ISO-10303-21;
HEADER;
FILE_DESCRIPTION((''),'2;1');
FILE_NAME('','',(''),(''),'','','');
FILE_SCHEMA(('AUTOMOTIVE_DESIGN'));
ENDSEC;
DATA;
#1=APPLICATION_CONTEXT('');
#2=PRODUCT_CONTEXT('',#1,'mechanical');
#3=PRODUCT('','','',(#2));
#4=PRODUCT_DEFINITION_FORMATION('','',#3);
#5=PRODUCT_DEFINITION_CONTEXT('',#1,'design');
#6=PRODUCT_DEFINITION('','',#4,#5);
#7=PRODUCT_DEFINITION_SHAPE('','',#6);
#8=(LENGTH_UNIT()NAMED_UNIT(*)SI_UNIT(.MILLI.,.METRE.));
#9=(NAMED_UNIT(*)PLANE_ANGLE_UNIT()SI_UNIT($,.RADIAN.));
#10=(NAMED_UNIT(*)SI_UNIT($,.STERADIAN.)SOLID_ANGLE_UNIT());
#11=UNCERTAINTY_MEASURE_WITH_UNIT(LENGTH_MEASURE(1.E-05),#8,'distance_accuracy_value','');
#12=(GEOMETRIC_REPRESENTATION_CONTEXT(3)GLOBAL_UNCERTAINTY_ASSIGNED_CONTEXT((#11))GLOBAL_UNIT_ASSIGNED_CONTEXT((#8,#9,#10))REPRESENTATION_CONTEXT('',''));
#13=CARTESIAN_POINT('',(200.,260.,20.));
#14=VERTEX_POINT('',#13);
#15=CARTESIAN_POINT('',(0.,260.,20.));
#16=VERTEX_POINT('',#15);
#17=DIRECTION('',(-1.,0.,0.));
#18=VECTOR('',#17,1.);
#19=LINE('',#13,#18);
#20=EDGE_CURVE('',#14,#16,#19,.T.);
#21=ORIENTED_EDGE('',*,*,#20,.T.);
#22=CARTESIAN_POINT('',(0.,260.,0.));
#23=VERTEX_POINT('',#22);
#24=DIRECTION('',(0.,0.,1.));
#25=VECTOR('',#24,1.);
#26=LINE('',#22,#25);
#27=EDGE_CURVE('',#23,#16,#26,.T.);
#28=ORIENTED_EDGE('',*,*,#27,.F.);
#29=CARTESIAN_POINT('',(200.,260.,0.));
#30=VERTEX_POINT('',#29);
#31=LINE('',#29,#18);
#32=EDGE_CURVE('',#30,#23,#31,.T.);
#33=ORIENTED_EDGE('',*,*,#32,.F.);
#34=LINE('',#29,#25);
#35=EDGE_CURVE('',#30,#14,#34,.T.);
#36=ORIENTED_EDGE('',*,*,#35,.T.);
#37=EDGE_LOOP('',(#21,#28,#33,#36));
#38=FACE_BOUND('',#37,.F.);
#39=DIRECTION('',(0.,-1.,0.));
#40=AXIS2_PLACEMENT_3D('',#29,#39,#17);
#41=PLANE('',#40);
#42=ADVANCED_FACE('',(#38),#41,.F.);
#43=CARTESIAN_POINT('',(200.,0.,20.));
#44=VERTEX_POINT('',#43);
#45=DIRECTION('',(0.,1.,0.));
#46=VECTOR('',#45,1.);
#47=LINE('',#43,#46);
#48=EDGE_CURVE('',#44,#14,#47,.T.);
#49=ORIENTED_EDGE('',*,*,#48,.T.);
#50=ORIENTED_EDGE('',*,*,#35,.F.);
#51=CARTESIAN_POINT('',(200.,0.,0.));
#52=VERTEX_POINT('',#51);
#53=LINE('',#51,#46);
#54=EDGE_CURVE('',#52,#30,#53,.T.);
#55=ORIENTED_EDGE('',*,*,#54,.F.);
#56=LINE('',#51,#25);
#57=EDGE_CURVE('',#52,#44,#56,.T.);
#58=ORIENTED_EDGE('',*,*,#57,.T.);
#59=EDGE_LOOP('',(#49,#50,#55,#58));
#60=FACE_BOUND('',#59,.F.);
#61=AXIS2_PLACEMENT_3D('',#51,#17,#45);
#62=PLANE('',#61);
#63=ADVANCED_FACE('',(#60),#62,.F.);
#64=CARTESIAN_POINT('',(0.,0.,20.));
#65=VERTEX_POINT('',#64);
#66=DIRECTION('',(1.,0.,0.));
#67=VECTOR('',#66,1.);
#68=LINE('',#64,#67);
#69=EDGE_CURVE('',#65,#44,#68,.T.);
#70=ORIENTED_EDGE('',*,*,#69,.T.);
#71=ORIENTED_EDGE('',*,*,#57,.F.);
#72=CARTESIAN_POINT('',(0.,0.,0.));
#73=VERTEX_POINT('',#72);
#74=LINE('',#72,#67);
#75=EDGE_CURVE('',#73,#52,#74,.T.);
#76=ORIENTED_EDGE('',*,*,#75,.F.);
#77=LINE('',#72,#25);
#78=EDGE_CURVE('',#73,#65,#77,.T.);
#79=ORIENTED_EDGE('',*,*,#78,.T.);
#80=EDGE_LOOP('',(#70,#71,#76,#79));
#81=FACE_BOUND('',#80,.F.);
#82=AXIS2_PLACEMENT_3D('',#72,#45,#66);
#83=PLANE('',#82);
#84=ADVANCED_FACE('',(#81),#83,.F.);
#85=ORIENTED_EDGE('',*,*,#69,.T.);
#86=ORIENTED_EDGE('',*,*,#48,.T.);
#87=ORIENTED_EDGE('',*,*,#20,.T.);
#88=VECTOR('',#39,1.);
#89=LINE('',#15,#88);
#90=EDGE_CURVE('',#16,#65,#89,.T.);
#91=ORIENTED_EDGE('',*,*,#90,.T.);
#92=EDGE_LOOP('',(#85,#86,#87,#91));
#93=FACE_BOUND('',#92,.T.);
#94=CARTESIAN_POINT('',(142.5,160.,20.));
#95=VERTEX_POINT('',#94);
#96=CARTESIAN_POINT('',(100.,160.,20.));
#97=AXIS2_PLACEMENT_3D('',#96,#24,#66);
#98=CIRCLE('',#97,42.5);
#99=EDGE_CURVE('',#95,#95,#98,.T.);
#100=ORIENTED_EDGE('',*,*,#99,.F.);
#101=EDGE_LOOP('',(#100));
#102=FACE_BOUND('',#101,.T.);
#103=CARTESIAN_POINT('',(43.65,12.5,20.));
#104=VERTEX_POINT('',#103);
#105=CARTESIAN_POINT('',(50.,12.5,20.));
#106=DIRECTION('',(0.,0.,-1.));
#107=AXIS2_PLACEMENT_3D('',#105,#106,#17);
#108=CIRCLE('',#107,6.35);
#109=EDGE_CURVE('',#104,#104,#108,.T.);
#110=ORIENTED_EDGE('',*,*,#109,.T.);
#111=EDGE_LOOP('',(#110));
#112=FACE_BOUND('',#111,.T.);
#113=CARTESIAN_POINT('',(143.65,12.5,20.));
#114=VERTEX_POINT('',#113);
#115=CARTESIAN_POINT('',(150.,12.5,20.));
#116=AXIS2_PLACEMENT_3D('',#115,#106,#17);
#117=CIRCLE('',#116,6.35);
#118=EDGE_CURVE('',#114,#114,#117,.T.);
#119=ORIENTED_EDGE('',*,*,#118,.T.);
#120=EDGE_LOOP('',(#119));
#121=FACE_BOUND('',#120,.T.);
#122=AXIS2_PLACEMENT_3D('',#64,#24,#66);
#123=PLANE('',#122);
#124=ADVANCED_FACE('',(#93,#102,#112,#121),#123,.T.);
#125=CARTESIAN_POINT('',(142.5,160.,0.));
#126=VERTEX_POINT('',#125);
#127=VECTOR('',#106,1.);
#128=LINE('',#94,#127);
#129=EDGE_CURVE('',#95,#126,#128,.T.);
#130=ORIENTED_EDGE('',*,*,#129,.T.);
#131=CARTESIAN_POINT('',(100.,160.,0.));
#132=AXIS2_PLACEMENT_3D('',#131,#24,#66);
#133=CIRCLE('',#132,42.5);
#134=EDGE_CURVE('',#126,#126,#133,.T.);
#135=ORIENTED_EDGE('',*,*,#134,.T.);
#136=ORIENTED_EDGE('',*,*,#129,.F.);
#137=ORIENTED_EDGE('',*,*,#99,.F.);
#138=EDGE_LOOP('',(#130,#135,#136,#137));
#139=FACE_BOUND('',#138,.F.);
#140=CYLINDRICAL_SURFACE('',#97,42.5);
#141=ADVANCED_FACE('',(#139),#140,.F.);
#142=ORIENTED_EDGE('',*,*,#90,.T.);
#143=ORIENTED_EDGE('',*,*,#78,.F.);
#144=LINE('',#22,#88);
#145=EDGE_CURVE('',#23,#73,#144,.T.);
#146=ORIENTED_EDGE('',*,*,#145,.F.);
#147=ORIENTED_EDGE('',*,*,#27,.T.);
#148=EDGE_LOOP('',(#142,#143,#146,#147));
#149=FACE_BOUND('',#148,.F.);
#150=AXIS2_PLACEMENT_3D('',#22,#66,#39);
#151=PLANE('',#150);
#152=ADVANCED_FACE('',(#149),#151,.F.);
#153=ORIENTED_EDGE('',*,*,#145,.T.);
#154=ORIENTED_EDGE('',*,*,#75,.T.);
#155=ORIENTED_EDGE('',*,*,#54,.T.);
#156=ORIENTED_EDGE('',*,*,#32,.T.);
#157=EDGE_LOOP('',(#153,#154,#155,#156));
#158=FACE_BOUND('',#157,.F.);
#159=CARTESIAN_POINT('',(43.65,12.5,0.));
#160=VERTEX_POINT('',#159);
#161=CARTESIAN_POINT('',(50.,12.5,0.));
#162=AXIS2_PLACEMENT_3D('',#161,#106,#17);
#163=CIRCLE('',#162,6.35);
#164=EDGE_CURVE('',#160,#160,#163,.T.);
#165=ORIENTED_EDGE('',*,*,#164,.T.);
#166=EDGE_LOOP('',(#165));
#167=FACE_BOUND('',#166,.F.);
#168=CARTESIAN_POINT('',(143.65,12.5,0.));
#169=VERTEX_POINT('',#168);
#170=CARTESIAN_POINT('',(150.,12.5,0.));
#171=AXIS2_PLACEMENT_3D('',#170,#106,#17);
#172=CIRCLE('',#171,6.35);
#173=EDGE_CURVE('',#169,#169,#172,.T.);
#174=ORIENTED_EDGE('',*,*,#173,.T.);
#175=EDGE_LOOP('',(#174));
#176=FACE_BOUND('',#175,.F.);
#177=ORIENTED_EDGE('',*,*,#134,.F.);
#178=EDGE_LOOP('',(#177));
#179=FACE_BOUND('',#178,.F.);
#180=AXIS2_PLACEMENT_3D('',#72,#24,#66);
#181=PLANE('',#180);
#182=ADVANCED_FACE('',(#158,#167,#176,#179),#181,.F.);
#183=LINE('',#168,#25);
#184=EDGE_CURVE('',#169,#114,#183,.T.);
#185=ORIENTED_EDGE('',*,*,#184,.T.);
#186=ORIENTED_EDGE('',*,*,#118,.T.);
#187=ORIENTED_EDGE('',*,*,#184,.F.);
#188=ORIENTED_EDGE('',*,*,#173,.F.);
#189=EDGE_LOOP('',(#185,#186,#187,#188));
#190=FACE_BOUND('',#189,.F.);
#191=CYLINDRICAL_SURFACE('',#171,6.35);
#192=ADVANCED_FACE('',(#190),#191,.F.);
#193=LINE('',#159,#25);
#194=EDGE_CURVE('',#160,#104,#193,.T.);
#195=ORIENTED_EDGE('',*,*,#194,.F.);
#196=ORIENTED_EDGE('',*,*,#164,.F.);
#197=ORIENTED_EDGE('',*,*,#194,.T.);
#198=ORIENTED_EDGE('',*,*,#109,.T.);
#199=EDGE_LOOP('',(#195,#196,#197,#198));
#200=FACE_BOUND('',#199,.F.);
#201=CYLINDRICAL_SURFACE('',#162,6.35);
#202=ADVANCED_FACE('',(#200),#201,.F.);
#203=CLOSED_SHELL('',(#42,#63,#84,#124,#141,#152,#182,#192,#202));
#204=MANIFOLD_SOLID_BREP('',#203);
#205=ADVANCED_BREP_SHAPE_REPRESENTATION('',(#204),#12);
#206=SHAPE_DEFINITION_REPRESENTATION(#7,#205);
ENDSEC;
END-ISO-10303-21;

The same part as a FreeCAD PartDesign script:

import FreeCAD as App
import Part
import Sketcher
from FreeCAD import Vector
Q = App.Units.Quantity

doc = App.newDocument("Part")
body = doc.addObject("PartDesign::Body", "Body")

# Sketch on XY plane
sketch1 = doc.addObject("Sketcher::SketchObject", "Sketch")
body.addObject(sketch1)
sketch1.AttachmentSupport = (doc.XY_Plane, [""])
sketch1.MapMode = "FlatFace"
sketch1.addGeometry([
    Part.LineSegment(Vector(0, 260, 0), Vector(0, 0, 0)),
    Part.LineSegment(Vector(0, 0, 0), Vector(200, 0, 0)),
    Part.LineSegment(Vector(200, 0, 0), Vector(200, 260, 0)),
    Part.LineSegment(Vector(200, 260, 0), Vector(0, 260, 0)),
], False)
sketch1.addConstraint([
    Sketcher.Constraint("Coincident", 0, 2, 1, 1),
    Sketcher.Constraint("Coincident", 1, 2, 2, 1),
    Sketcher.Constraint("Coincident", 2, 2, 3, 1),
    Sketcher.Constraint("Coincident", 3, 2, 0, 1),
    Sketcher.Constraint("Vertical", 0),
    Sketcher.Constraint("Horizontal", 1),
    Sketcher.Constraint("Vertical", 2),
    Sketcher.Constraint("Horizontal", 3),
    Sketcher.Constraint("Coincident", 0, 2, -1, 1),
    Sketcher.Constraint("DistanceX", 1, 1, 1, 2, Q("200 mm")),
    Sketcher.Constraint("DistanceY", 0, 2, 0, 1, Q("260 mm")),
])
pad1 = doc.addObject("PartDesign::Pad", "Pad")
body.addObject(pad1)
pad1.Profile = sketch1
pad1.Length = 20

# Sketch on XY plane
sketch2 = doc.addObject("Sketcher::SketchObject", "Sketch001")
body.addObject(sketch2)
sketch2.AttachmentSupport = (doc.XY_Plane, [""])
sketch2.MapMode = "FlatFace"
sketch2.AttachmentOffset = App.Placement(Vector(0, 0, 20), App.Rotation())
sketch2.addGeometry(Part.Circle(Vector(100, 160, 0), Vector(0, 0, 1), 42), False)
sketch2.addConstraint([
    Sketcher.Constraint("Diameter", 0, Q("85 mm")),
    Sketcher.Constraint("DistanceX", -1, 1, 0, 3, Q("100 mm")),
    Sketcher.Constraint("DistanceY", -1, 1, 0, 3, Q("160 mm")),
])
pocket1 = doc.addObject("PartDesign::Pocket", "Pocket")
body.addObject(pocket1)
pocket1.Profile = sketch2
pocket1.Length = 20

# Sketch on XY plane
sketch3 = doc.addObject("Sketcher::SketchObject", "Sketch002")
body.addObject(sketch3)
sketch3.AttachmentSupport = (doc.XY_Plane, [""])
sketch3.MapMode = "FlatFace"
sketch3.addGeometry([
    Part.Circle(Vector(150, 12, 0), Vector(0, 0, 1), 6),
    Part.Circle(Vector(50, 12, 0), Vector(0, 0, 1), 6),
], False)
sketch3.addConstraint([
    Sketcher.Constraint("Equal", 0, 1),
    Sketcher.Constraint("Horizontal", 0, 3, 1, 3),
    Sketcher.Constraint("Diameter", 0, Q("12.7 mm")),
    Sketcher.Constraint("DistanceX", -1, 1, 1, 3, Q("50 mm")),
    Sketcher.Constraint("DistanceY", -1, 1, 0, 3, Q("12.5 mm")),
    Sketcher.Constraint("DistanceX", -1, 1, 0, 3, Q("150 mm")),
])
pocket2 = doc.addObject("PartDesign::Pocket", "Pocket001")
body.addObject(pocket2)
pocket2.Profile = sketch3
pocket2.Length = 20
pocket2.Reversed = True

doc.recompute()
